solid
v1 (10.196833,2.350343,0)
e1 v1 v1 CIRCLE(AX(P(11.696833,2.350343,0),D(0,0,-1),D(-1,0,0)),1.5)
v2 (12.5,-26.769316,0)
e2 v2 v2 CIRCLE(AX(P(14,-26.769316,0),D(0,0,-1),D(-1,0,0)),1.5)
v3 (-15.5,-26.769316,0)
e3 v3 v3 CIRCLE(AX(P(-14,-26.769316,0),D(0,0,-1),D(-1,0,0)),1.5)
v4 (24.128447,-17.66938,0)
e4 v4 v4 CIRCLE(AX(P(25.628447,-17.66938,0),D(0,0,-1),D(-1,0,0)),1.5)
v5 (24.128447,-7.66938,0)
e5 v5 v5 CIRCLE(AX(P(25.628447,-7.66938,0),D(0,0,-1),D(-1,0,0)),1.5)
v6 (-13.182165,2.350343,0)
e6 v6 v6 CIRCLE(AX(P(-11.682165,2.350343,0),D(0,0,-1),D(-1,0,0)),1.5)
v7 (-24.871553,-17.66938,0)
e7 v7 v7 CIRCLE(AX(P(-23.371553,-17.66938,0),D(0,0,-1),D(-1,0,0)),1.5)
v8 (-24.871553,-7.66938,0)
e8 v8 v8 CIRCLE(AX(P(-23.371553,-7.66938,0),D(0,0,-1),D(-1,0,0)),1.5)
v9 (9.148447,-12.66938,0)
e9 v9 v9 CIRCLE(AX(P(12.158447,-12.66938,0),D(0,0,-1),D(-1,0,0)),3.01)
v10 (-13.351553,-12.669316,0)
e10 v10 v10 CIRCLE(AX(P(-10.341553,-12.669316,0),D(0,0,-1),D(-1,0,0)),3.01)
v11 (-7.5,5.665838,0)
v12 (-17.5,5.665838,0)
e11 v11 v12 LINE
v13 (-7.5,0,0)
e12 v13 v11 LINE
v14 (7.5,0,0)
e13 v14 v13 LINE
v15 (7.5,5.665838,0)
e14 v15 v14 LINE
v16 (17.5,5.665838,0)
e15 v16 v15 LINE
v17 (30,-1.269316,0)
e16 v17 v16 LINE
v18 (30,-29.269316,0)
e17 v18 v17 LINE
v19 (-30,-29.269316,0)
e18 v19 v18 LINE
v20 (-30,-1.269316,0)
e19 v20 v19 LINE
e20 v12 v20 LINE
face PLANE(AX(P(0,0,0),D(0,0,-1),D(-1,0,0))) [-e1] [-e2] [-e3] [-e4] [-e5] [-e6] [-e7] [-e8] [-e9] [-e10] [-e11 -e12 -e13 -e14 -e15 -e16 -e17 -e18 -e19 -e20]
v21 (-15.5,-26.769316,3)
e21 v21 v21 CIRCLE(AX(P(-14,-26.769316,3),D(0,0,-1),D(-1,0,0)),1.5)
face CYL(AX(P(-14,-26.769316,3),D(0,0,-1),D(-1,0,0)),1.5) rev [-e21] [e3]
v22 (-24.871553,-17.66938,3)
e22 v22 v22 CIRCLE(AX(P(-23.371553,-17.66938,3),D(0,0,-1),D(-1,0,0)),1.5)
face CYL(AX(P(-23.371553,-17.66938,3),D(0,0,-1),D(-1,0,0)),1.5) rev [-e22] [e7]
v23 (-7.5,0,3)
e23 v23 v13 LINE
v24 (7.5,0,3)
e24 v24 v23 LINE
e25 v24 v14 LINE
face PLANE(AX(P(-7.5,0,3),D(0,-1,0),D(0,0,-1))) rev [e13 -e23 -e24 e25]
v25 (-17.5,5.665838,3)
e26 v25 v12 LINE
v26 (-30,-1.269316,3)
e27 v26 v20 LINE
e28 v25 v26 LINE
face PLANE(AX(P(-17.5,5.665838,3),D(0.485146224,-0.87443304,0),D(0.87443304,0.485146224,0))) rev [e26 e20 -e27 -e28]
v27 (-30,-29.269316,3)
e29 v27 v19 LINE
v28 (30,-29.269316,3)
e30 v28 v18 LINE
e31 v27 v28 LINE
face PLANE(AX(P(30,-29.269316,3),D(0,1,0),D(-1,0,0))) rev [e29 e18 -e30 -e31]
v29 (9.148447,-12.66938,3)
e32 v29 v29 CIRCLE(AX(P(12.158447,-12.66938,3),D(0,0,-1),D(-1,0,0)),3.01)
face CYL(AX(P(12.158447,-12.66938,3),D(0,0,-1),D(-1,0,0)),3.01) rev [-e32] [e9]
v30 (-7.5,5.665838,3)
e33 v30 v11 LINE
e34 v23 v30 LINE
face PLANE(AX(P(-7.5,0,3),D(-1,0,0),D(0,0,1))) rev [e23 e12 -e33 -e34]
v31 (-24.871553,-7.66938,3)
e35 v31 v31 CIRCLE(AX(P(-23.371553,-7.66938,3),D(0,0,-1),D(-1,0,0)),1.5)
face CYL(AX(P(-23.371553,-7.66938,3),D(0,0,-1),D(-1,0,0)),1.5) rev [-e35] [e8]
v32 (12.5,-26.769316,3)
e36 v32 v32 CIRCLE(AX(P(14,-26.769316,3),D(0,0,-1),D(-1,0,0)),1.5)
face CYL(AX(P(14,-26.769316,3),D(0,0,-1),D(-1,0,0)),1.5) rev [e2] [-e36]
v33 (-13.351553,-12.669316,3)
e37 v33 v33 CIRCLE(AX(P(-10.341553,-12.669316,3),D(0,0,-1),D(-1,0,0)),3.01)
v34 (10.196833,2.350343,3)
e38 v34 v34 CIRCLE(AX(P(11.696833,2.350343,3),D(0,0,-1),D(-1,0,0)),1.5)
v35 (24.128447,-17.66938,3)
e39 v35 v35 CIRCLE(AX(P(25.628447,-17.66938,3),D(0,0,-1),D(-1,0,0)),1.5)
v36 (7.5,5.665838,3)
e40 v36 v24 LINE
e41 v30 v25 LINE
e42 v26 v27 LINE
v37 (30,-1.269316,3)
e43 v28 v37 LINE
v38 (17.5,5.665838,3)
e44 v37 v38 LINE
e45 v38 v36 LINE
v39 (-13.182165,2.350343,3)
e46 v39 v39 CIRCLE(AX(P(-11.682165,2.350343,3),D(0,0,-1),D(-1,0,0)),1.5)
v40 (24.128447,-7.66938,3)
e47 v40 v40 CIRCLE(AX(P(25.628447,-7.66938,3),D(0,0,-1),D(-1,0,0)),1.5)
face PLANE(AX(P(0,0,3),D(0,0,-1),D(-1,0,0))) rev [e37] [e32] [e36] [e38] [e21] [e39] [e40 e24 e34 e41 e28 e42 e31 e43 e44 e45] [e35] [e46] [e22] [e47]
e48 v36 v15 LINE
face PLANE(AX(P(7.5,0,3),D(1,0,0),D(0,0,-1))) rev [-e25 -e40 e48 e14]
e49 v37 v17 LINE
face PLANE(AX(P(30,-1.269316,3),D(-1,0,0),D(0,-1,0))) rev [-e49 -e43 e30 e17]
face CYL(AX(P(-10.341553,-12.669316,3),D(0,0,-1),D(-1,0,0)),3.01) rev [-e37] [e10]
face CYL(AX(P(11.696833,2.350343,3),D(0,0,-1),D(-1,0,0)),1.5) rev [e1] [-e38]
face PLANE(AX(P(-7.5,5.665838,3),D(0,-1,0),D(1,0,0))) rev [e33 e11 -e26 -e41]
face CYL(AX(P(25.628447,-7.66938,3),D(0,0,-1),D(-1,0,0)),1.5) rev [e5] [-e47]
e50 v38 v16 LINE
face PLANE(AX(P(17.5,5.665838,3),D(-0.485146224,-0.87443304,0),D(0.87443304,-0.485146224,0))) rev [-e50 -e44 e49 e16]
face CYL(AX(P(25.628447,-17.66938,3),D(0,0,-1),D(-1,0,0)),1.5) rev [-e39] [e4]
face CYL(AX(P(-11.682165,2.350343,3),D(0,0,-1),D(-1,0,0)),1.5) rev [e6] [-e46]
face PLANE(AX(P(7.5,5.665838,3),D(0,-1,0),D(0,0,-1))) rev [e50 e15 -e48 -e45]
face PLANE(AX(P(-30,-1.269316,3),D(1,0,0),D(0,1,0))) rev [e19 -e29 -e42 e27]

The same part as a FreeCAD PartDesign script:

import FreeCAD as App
import Part
import Sketcher

V = App.Vector
Q = App.Units.Quantity


def add_polygon(sketch, points):
    """Adds a closed chain of lines whose ends are joined by coincident constraints."""
    first, n = sketch.GeometryCount, len(points)
    for a, b in zip(points, points[1:] + points[:1]):
        sketch.addGeometry(Part.LineSegment(App.Vector(*a, 0), App.Vector(*b, 0)), False)
    for i in range(n):
        sketch.addConstraint(Sketcher.Constraint("Coincident", first + i, 2, first + (i + 1) % n, 1))

doc = App.newDocument("Part")
params = doc.addObject("Spreadsheet::Sheet", "Params")
for row, (alias, value) in enumerate([
    ("sketch1_width", "15 mm"),
    ("sketch1_width2", "10 mm"),
    ("sketch1_width3", "60 mm"),
    ("sketch1_height", "28 mm"),
    ("pad1_length", "3 mm"),
    ("sketch2_diameter", "3 mm"),
    ("sketch3_diameter", "3 mm"),
    ("sketch4_diameter", "6.02 mm"),
    ("sketch5_diameter", "3 mm"),
], start=1):
    params.set(f"A{row}", alias)
    params.set(f"B{row}", "=" + value)
    params.setAlias(f"B{row}", alias)

body = doc.addObject("PartDesign::Body", "Body")

# Sketch on XY plane
sketch1 = body.newObject("Sketcher::SketchObject", "Sketch")
sketch1.AttachmentSupport = (doc.getObject("XY_Plane"), [""])
sketch1.MapMode = "FlatFace"
add_polygon(sketch1, [(8, 0), (-8, 0), (-8, 6), (-18, 6), (-30, -1), (-30, -29), (30, -29), (30, -1), (18, 6), (8, 6)])  # lines 0-9
sketch1.addConstraint([
    Sketcher.Constraint("Horizontal", 0),
    Sketcher.Constraint("Vertical", 1),
    Sketcher.Constraint("Horizontal", 2),
    Sketcher.Constraint("Vertical", 4),
    Sketcher.Constraint("Horizontal", 5),
    Sketcher.Constraint("Vertical", 6),
    Sketcher.Constraint("Horizontal", 8),
    Sketcher.Constraint("Vertical", 9),
    Sketcher.Constraint("Symmetric", 0, 2, 9, 2, -1, 1),
    Sketcher.Constraint("Symmetric", 3, 2, 6, 2, -2),
    Sketcher.Constraint("Symmetric", 2, 2, 7, 2, -2),
    Sketcher.Constraint("DistanceX", 0, 2, 0, 1, Q("15 mm")),
    Sketcher.Constraint("DistanceX", 2, 2, 2, 1, Q("10 mm")),
    Sketcher.Constraint("DistanceX", 5, 1, 5, 2, Q("60 mm")),
    Sketcher.Constraint("DistanceY", 4, 2, 4, 1, Q("28 mm")),
    Sketcher.Constraint("DistanceY", 1, 1, 1, 2, Q("5.665838 mm")),
    Sketcher.Constraint("Distance", 3, Q("14.294977 mm")),
])
sketch1.setExpression("Constraints[21]", "Params.sketch1_width")
sketch1.setExpression("Constraints[22]", "Params.sketch1_width2")
sketch1.setExpression("Constraints[23]", "Params.sketch1_width3")
sketch1.setExpression("Constraints[24]", "Params.sketch1_height")
pad1 = body.newObject("PartDesign::Pad", "Pad")
pad1.Profile = sketch1
pad1.setExpression("Length", "Params.pad1_length")

# Sketch on XY plane
sketch2 = body.newObject("Sketcher::SketchObject", "Sketch001")
sketch2.AttachmentSupport = (doc.getObject("XY_Plane"), [""])
sketch2.MapMode = "FlatFace"
sketch2.addGeometry([
    Part.Circle(V(25.6, -17.7, 0), V(0, 0, 1), 1.5),
    Part.Circle(V(25.6, -7.7, 0), V(0, 0, 1), 1.5),
    Part.Circle(V(-23.4, -17.7, 0), V(0, 0, 1), 1.5),
    Part.Circle(V(-23.4, -7.7, 0), V(0, 0, 1), 1.5),
], False)
sketch2.addConstraint([
    Sketcher.Constraint("Equal", 0, 1),
    Sketcher.Constraint("Equal", 1, 2),
    Sketcher.Constraint("Equal", 2, 3),
    Sketcher.Constraint("Horizontal", 0, 3, 2, 3),
    Sketcher.Constraint("Horizontal", 1, 3, 3, 3),
    Sketcher.Constraint("Vertical", 0, 3, 1, 3),
    Sketcher.Constraint("Vertical", 2, 3, 3, 3),
    Sketcher.Constraint("Diameter", 0, Q("3 mm")),
    Sketcher.Constraint("DistanceY", 0, 3, 1, 3, Q("10 mm")),
    Sketcher.Constraint("DistanceX", 2, 3, 0, 3, Q("49 mm")),
    Sketcher.Constraint("DistanceY", 0, 3, -1, 1, Q("17.66938 mm")),
    Sketcher.Constraint("DistanceX", -1, 1, 0, 3, Q("25.628447 mm")),
])
sketch2.setExpression("Constraints[7]", "Params.sketch2_diameter")
pocket1 = body.newObject("PartDesign::Pocket", "Pocket")
pocket1.Profile = sketch2
pocket1.Type = "ThroughAll"
pocket1.Reversed = True

# Sketch on XY plane
sketch3 = body.newObject("Sketcher::SketchObject", "Sketch002")
sketch3.AttachmentSupport = (doc.getObject("XY_Plane"), [""])
sketch3.MapMode = "FlatFace"
sketch3.addGeometry([
    Part.Circle(V(11.7, 2.4, 0), V(0, 0, 1), 1.5),
    Part.Circle(V(-11.7, 2.4, 0), V(0, 0, 1), 1.5),
], False)
sketch3.addConstraint([
    Sketcher.Constraint("Equal", 0, 1),
    Sketcher.Constraint("Horizontal", 0, 3, 1, 3),
    Sketcher.Constraint("Diameter", 0, Q("3 mm")),
    Sketcher.Constraint("DistanceX", -1, 1, 0, 3, Q("11.696833 mm")),
    Sketcher.Constraint("DistanceY", -1, 1, 0, 3, Q("2.350343 mm")),
    Sketcher.Constraint("DistanceX", 1, 3, -1, 1, Q("11.682165 mm")),
])
sketch3.setExpression("Constraints[2]", "Params.sketch3_diameter")
pocket2 = body.newObject("PartDesign::Pocket", "Pocket001")
pocket2.Profile = sketch3
pocket2.Type = "ThroughAll"
pocket2.Reversed = True

# Sketch on XY plane
sketch4 = body.newObject("Sketcher::SketchObject", "Sketch003")
sketch4.AttachmentSupport = (doc.getObject("XY_Plane"), [""])
sketch4.MapMode = "FlatFace"
sketch4.addGeometry([
    Part.Circle(V(-10.3, -12.7, 0), V(0, 0, 1), 3),
    Part.Circle(V(12.2, -12.7, 0), V(0, 0, 1), 3),
], False)
sketch4.addConstraint([
    Sketcher.Constraint("Equal", 0, 1),
    Sketcher.Constraint("Diameter", 0, Q("6.02 mm")),
    Sketcher.Constraint("DistanceX", 0, 3, 1, 3, Q("22.5 mm")),
    Sketcher.Constraint("DistanceY", 1, 3, -1, 1, Q("12.66938 mm")),
    Sketcher.Constraint("DistanceX", 0, 3, -1, 1, Q("10.341553 mm")),
    Sketcher.Constraint("DistanceY", 0, 3, -1, 1, Q("12.669316 mm")),
])
sketch4.setExpression("Constraints[1]", "Params.sketch4_diameter")
pocket3 = body.newObject("PartDesign::Pocket", "Pocket002")
pocket3.Profile = sketch4
pocket3.Type = "ThroughAll"
pocket3.Reversed = True

# Sketch on XY plane
sketch5 = body.newObject("Sketcher::SketchObject", "Sketch004")
sketch5.AttachmentSupport = (doc.getObject("XY_Plane"), [""])
sketch5.MapMode = "FlatFace"
sketch5.addGeometry([
    Part.Circle(V(-14, -26.8, 0), V(0, 0, 1), 1.5),
    Part.Circle(V(14, -26.8, 0), V(0, 0, 1), 1.5),
], False)
sketch5.addConstraint([
    Sketcher.Constraint("Equal", 0, 1),
    Sketcher.Constraint("Symmetric", 0, 3, 1, 3, -2),
    Sketcher.Constraint("Diameter", 0, Q("3 mm")),
    Sketcher.Constraint("DistanceX", 0, 3, -1, 1, Q("14 mm")),
    Sketcher.Constraint("DistanceY", 0, 3, -1, 1, Q("26.769316 mm")),
])
sketch5.setExpression("Constraints[2]", "Params.sketch5_diameter")
pocket4 = body.newObject("PartDesign::Pocket", "Pocket003")
pocket4.Profile = sketch5
pocket4.Type = "ThroughAll"
pocket4.Reversed = True

doc.recompute()
